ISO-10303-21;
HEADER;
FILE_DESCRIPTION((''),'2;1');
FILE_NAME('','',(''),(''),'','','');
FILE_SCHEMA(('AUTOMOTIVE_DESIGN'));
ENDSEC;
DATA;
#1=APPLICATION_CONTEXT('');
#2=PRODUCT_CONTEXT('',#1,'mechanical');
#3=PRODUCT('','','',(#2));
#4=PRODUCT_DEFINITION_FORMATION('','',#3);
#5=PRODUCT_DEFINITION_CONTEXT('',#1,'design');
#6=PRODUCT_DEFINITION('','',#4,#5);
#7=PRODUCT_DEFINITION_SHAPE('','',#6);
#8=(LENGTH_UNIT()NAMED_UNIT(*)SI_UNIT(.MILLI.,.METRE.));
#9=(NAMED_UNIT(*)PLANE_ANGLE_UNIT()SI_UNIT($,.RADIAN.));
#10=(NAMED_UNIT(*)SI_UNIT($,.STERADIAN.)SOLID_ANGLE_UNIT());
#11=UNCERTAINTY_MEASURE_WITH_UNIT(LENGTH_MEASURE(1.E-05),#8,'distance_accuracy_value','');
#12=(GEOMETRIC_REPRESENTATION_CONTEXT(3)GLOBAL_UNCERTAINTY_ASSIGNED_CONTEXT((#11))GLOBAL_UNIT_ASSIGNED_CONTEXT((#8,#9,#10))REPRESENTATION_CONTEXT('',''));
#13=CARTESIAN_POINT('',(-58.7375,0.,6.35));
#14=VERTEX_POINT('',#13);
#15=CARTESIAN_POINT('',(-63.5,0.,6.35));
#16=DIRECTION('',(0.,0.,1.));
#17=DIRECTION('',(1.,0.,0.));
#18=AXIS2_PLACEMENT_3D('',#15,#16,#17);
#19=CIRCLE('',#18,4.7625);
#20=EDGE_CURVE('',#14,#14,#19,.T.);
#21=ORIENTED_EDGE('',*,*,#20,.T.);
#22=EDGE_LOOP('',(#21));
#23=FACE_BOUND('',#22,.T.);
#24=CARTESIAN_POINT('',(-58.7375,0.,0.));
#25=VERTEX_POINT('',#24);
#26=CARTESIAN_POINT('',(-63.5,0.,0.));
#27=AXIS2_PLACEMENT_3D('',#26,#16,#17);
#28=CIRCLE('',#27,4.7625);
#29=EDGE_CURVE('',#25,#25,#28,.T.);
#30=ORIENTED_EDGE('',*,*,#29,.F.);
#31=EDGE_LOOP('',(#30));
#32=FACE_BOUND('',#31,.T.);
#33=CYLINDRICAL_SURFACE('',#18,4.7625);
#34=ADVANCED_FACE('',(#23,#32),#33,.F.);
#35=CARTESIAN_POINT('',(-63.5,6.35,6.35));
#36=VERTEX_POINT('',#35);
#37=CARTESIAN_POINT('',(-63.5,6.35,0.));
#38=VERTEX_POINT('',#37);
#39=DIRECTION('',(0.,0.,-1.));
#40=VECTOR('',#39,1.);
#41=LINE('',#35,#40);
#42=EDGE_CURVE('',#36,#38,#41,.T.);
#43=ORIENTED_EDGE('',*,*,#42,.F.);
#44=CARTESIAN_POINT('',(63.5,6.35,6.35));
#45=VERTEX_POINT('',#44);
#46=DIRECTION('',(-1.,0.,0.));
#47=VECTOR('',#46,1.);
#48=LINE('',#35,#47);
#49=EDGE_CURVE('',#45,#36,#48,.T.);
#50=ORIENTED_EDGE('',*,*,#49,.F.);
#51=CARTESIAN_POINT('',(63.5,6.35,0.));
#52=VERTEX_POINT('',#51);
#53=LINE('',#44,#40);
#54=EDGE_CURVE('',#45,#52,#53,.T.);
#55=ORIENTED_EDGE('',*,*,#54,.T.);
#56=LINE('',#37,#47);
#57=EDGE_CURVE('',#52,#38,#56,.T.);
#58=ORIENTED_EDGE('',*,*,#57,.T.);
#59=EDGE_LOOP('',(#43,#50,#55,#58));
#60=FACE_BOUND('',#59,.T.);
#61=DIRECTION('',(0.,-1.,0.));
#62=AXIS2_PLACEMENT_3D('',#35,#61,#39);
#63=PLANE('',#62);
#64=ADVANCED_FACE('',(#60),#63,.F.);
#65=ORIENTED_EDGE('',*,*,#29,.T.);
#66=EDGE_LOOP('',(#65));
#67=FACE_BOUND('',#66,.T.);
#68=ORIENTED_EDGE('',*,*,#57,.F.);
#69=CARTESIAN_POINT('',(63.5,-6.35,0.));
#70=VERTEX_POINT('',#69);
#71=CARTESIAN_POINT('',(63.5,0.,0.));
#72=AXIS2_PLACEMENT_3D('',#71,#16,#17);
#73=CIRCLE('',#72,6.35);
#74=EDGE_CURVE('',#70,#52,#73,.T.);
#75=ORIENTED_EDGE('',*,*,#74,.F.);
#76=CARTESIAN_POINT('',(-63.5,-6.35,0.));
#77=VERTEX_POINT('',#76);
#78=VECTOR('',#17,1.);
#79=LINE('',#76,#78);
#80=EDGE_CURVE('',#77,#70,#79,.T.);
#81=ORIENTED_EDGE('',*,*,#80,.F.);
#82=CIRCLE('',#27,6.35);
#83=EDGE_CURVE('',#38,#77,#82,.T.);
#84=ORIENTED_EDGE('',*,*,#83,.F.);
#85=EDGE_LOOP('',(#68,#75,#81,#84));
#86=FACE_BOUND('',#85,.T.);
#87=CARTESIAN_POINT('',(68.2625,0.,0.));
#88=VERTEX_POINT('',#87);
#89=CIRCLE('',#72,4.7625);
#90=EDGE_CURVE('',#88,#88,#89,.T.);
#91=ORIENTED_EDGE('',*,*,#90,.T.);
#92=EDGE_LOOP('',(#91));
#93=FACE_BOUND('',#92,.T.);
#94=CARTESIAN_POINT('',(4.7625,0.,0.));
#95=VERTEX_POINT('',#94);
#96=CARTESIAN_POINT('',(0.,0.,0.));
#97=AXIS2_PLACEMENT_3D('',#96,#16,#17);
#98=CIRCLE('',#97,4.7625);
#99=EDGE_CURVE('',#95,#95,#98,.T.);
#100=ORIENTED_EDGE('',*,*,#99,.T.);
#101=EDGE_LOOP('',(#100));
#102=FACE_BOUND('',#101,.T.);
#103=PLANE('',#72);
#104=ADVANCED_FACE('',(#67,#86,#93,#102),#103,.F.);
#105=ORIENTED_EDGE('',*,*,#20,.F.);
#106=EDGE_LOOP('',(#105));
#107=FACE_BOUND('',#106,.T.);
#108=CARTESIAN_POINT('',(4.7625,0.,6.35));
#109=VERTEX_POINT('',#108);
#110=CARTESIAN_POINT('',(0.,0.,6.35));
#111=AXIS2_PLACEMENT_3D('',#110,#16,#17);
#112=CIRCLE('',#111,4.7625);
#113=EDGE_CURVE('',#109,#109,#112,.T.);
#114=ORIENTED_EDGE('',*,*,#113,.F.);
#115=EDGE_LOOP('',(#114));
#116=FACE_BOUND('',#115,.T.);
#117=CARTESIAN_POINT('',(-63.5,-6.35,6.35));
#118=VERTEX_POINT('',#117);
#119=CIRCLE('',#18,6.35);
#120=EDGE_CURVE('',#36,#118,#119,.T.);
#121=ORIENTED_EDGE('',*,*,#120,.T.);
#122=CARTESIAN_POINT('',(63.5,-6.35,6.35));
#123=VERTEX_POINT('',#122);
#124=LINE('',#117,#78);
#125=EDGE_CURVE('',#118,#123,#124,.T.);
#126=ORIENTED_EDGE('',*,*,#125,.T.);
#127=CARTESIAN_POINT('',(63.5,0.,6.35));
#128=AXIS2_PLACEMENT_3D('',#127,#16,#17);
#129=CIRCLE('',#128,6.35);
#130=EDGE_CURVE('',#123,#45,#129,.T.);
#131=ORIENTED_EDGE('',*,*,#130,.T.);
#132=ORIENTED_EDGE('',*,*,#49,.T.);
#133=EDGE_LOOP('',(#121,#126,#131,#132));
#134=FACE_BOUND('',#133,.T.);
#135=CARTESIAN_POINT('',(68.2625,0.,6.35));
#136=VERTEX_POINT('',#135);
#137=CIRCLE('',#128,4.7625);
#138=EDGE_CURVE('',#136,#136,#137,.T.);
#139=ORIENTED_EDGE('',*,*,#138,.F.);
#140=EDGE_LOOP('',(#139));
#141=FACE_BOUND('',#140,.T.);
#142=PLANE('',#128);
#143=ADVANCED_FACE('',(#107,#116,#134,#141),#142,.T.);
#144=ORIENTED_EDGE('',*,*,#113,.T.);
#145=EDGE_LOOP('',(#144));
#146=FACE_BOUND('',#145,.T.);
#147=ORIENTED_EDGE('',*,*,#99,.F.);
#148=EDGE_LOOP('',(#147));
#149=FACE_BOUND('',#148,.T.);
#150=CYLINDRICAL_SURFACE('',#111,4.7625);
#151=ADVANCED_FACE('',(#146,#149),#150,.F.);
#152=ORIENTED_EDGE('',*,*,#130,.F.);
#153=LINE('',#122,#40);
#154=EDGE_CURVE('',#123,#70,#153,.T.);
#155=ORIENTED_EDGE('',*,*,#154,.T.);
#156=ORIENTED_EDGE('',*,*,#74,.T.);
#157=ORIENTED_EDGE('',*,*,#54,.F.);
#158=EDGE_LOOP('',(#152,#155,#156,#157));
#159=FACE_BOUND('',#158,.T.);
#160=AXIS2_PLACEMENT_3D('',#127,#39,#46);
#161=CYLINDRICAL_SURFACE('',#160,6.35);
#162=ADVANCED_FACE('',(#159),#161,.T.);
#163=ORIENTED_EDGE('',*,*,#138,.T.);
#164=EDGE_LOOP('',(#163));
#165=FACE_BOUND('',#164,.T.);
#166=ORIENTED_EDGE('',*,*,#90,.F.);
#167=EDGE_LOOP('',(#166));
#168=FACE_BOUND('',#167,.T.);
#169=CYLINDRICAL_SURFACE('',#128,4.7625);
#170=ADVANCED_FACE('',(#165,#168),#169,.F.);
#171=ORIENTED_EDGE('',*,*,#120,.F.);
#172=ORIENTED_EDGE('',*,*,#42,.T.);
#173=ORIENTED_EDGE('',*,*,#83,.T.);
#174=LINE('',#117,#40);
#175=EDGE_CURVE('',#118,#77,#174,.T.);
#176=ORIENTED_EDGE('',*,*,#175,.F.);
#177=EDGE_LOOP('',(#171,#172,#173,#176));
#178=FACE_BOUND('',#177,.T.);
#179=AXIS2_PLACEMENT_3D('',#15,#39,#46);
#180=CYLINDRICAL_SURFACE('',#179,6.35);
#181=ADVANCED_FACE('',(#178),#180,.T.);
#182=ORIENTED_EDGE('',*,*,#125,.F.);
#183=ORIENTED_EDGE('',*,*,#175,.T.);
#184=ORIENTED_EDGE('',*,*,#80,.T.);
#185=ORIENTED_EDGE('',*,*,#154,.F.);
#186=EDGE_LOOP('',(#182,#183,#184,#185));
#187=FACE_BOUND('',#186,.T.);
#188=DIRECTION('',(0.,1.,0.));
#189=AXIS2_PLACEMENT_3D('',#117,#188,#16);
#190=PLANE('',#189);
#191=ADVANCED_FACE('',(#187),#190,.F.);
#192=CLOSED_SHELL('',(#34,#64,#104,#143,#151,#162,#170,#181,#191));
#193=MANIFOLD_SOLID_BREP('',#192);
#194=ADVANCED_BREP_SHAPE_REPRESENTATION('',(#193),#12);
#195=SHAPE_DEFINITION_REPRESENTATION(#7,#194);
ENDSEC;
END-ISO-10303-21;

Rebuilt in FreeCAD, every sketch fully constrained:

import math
import FreeCAD as App
import Part
import Sketcher
from FreeCAD import Vector
Q = App.Units.Quantity

doc = App.newDocument("Part")
params = doc.addObject("Spreadsheet::Sheet", "Params")
for row, (alias, value) in enumerate([
    ("sketch1_width", "5 in"),
    ("sketch1_radius", "0.25 in"),
    ("pad1_length", "0.25 in"),
    ("sketch2_diameter", "0.375 in"),
    ("hole_diameter", "0.375 in"),
    ("hole_depth", "0.25 in"),
], start=1):
    params.set(f"A{row}", alias)
    params.set(f"B{row}", "=" + value)
    params.setAlias(f"B{row}", alias)

body = doc.addObject("PartDesign::Body", "Body")

sketch1 = body.newObject("Sketcher::SketchObject", "Sketch")
sketch1.AttachmentSupport = (doc.getObject("XY_Plane"), [""])
sketch1.MapMode = "FlatFace"
sketch1.addGeometry([
    Part.LineSegment(Vector(-63.5, -6.35, 0), Vector(63.5, -6.35, 0)),
    Part.ArcOfCircle(Part.Circle(Vector(63.5, 0, 0), Vector(0, 0, 1), 6.35), math.radians(-90), math.radians(90)),
    Part.LineSegment(Vector(63.5, 6.35, 0), Vector(-63.5, 6.35, 0)),
    Part.ArcOfCircle(Part.Circle(Vector(-63.5, 0, 0), Vector(0, 0, 1), 6.35), math.radians(90), math.radians(270)),
], False)
sketch1.addConstraint([
    Sketcher.Constraint("Tangent", 0, 2, 1, 1),
    Sketcher.Constraint("Tangent", 1, 2, 2, 1),
    Sketcher.Constraint("Tangent", 2, 2, 3, 1),
    Sketcher.Constraint("Tangent", 3, 2, 0, 1),
    Sketcher.Constraint("Horizontal", 0),
    Sketcher.Constraint("Horizontal", 2),
    Sketcher.Constraint("Symmetric", 1, 3, 3, 3, -1, 1),
    Sketcher.Constraint("DistanceX", 0, 1, 0, 2, Q("5 in")),
    Sketcher.Constraint("Radius", 1, Q("0.25 in")),
])
sketch1.setExpression("Constraints[7]", "Params.sketch1_width")
sketch1.setExpression("Constraints[8]", "Params.sketch1_radius")
pad1 = body.newObject("PartDesign::Pad", "Pad")
pad1.Profile = sketch1
pad1.setExpression("Length", "Params.pad1_length")

sketch2 = body.newObject("Sketcher::SketchObject", "Sketch001")
sketch2.AttachmentSupport = (doc.getObject("XY_Plane"), [""])
sketch2.MapMode = "FlatFace"
sketch2.AttachmentOffset = App.Placement(Vector(0, 0, 0.25 * 25.4), App.Rotation())
sketch2.addGeometry([
    Part.Circle(Vector(0, 0, 0), Vector(0, 0, 1), 4.7625),
    Part.Circle(Vector(-63.5, 0, 0), Vector(0, 0, 1), 4.7625),
    Part.Circle(Vector(63.5, 0, 0), Vector(0, 0, 1), 4.7625),
], False)
sketch2.addConstraint([
    Sketcher.Constraint("Coincident", 0, 3, -1, 1),
    Sketcher.Constraint("Equal", 0, 1),
    Sketcher.Constraint("Equal", 1, 2),
    Sketcher.Constraint("Symmetric", 1, 3, 2, 3, -1, 1),
    Sketcher.Constraint("PointOnObject", 1, 3, -1),
    Sketcher.Constraint("Diameter", 0, Q("0.375 in")),
    Sketcher.Constraint("DistanceX", 1, 3, 2, 3, Q("5 in")),
])
sketch2.setExpression("Constraints[5]", "Params.sketch2_diameter")
doc.recompute()
hole = body.newObject("PartDesign::Hole", "Hole")
hole.Profile = sketch2
hole.ThreadType = "None"
hole.setExpression("Diameter", "Params.hole_diameter")
hole.DepthType = "Dimension"
hole.setExpression("Depth", "Params.hole_depth")
hole.DrillPoint = "Flat"

doc.recompute()
